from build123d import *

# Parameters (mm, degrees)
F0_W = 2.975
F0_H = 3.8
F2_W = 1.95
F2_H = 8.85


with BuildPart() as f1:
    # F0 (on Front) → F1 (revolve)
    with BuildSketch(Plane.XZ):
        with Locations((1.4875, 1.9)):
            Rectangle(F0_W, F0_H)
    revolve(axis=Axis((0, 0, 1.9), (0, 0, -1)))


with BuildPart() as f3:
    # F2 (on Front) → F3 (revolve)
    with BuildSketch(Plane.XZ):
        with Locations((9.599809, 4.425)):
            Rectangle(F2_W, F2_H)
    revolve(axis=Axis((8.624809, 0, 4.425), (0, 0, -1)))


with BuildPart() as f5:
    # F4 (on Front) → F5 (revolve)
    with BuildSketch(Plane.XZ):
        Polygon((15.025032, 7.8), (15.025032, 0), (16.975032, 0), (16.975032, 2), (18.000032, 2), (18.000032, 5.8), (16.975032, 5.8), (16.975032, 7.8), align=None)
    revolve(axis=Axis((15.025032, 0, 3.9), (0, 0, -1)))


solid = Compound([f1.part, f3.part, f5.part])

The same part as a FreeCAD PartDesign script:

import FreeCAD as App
import Part
import Sketcher
from FreeCAD import Vector
Q = App.Units.Quantity

doc = App.newDocument("Part")
body = doc.addObject("PartDesign::Body", "Body")

# Sketch on XZ plane
sketch1 = doc.addObject("Sketcher::SketchObject", "Sketch")
body.addObject(sketch1)
sketch1.AttachmentSupport = (doc.XZ_Plane, [""])
sketch1.MapMode = "FlatFace"
sketch1.addGeometry([
    Part.LineSegment(Vector(0, 3.8, 0), Vector(0, 0, 0)),
    Part.LineSegment(Vector(0, 0, 0), Vector(2.975, 0, 0)),
    Part.LineSegment(Vector(2.975, 0, 0), Vector(2.975, 3.8, 0)),
    Part.LineSegment(Vector(2.975, 3.8, 0), Vector(0, 3.8, 0)),
], False)
sketch1.addConstraint([
    Sketcher.Constraint("Coincident", 0, 2, 1, 1),
    Sketcher.Constraint("Coincident", 1, 2, 2, 1),
    Sketcher.Constraint("Coincident", 2, 2, 3, 1),
    Sketcher.Constraint("Coincident", 3, 2, 0, 1),
    Sketcher.Constraint("Vertical", 0),
    Sketcher.Constraint("Horizontal", 1),
    Sketcher.Constraint("Vertical", 2),
    Sketcher.Constraint("Horizontal", 3),
    Sketcher.Constraint("Coincident", 0, 2, -1, 1),
    Sketcher.Constraint("DistanceY", 0, 2, 0, 1, Q("3.8 mm")),
    Sketcher.Constraint("DistanceX", 1, 1, 1, 2, Q("2.975 mm")),
])
revolution = doc.addObject("PartDesign::Revolution", "Revolution")
body.addObject(revolution)
revolution.Profile = sketch1
revolution.ReferenceAxis = (sketch1, ["V_Axis"])
revolution.Angle = 360
body2 = doc.addObject("PartDesign::Body", "Body001")

# Sketch on XZ plane
sketch2 = doc.addObject("Sketcher::SketchObject", "Sketch001")
body2.addObject(sketch2)
sketch2.AttachmentSupport = (doc.getObject("XZ_Plane001"), [""])
sketch2.MapMode = "FlatFace"
sketch2.addGeometry([
    Part.LineSegment(Vector(8.624809, 8.85, 0), Vector(8.624809, 0, 0)),
    Part.LineSegment(Vector(8.624809, 0, 0), Vector(10.574809, 0, 0)),
    Part.LineSegment(Vector(10.574809, 0, 0), Vector(10.574809, 8.85, 0)),
    Part.LineSegment(Vector(10.574809, 8.85, 0), Vector(8.624809, 8.85, 0)),
], False)
sketch2.addGeometry(Part.LineSegment(Vector(8.624809, 8.85, 0), Vector(8.624809, 0, 0)), True)  # axis
sketch2.addConstraint([
    Sketcher.Constraint("Coincident", 0, 2, 1, 1),
    Sketcher.Constraint("Coincident", 1, 2, 2, 1),
    Sketcher.Constraint("Coincident", 2, 2, 3, 1),
    Sketcher.Constraint("Coincident", 3, 2, 0, 1),
    Sketcher.Constraint("Vertical", 0),
    Sketcher.Constraint("Horizontal", 1),
    Sketcher.Constraint("Vertical", 2),
    Sketcher.Constraint("Horizontal", 3),
    Sketcher.Constraint("Vertical", 4),
    Sketcher.Constraint("Coincident", 4, 1, 3, 2),
    Sketcher.Constraint("PointOnObject", 0, 2, -1),
    Sketcher.Constraint("PointOnObject", 4, 2, -1),
    Sketcher.Constraint("DistanceX", 1, 1, 1, 2, Q("1.95 mm")),
    Sketcher.Constraint("DistanceY", 0, 2, 0, 1, Q("8.85 mm")),
    Sketcher.Constraint("DistanceX", -1, 1, 0, 2, Q("8.624809 mm")),
])
revolution2 = doc.addObject("PartDesign::Revolution", "Revolution001")
body2.addObject(revolution2)
revolution2.Profile = sketch2
revolution2.ReferenceAxis = (sketch2, ["Axis0"])
revolution2.Angle = 360
body3 = doc.addObject("PartDesign::Body", "Body002")

# Sketch on XZ plane
sketch3 = doc.addObject("Sketcher::SketchObject", "Sketch002")
body3.addObject(sketch3)
sketch3.AttachmentSupport = (doc.getObject("XZ_Plane002"), [""])
sketch3.MapMode = "FlatFace"
sketch3.addGeometry([
    Part.LineSegment(Vector(15.025032, 7.8, 0), Vector(15.025032, 0, 0)),  # 0
    Part.LineSegment(Vector(15.025032, 0, 0), Vector(16.975032, 0, 0)),  # 1
    Part.LineSegment(Vector(16.975032, 0, 0), Vector(16.975032, 2, 0)),  # 2
    Part.LineSegment(Vector(16.975032, 2, 0), Vector(18.000032, 2, 0)),  # 3
    Part.LineSegment(Vector(18.000032, 2, 0), Vector(18.000032, 5.8, 0)),  # 4
    Part.LineSegment(Vector(18.000032, 5.8, 0), Vector(16.975032, 5.8, 0)),  # 5
    Part.LineSegment(Vector(16.975032, 5.8, 0), Vector(16.975032, 7.8, 0)),  # 6
    Part.LineSegment(Vector(16.975032, 7.8, 0), Vector(15.025032, 7.8, 0)),  # 7
], False)
sketch3.addGeometry(Part.LineSegment(Vector(15.025032, 7.8, 0), Vector(15.025032, 0, 0)), True)  # axis
sketch3.addConstraint([
    Sketcher.Constraint("Coincident", 0, 2, 1, 1),
    Sketcher.Constraint("Coincident", 1, 2, 2, 1),
    Sketcher.Constraint("Coincident", 2, 2, 3, 1),
    Sketcher.Constraint("Coincident", 3, 2, 4, 1),
    Sketcher.Constraint("Coincident", 4, 2, 5, 1),
    Sketcher.Constraint("Coincident", 5, 2, 6, 1),
    Sketcher.Constraint("Coincident", 6, 2, 7, 1),
    Sketcher.Constraint("Coincident", 7, 2, 0, 1),
    Sketcher.Constraint("Vertical", 0),
    Sketcher.Constraint("Horizontal", 1),
    Sketcher.Constraint("Vertical", 2),
    Sketcher.Constraint("Horizontal", 3),
    Sketcher.Constraint("Vertical", 4),
    Sketcher.Constraint("Horizontal", 5),
    Sketcher.Constraint("Vertical", 6),
    Sketcher.Constraint("Horizontal", 7),
    Sketcher.Constraint("Vertical", 8),
    Sketcher.Constraint("Coincident", 8, 1, 7, 2),
    Sketcher.Constraint("PointOnObject", 0, 2, -1),
    Sketcher.Constraint("PointOnObject", 8, 2, -1),
    Sketcher.Constraint("Vertical", 2, 2, 5, 2),
    Sketcher.Constraint("Equal", 2, 6),
    Sketcher.Constraint("DistanceY", 2, 1, 2, 2, Q("2 mm")),
    Sketcher.Constraint("DistanceY", 0, 2, 0, 1, Q("7.8 mm")),
    Sketcher.Constraint("DistanceX", 1, 1, 1, 2, Q("1.95 mm")),
    Sketcher.Constraint("DistanceX", 3, 1, 3, 2, Q("1.025 mm")),
    Sketcher.Constraint("DistanceX", -1, 1, 1, 2, Q("16.975032 mm")),
])
revolution3 = doc.addObject("PartDesign::Revolution", "Revolution002")
body3.addObject(revolution3)
revolution3.Profile = sketch3
revolution3.ReferenceAxis = (sketch3, ["Axis0"])
revolution3.Angle = 360

doc.recompute()
